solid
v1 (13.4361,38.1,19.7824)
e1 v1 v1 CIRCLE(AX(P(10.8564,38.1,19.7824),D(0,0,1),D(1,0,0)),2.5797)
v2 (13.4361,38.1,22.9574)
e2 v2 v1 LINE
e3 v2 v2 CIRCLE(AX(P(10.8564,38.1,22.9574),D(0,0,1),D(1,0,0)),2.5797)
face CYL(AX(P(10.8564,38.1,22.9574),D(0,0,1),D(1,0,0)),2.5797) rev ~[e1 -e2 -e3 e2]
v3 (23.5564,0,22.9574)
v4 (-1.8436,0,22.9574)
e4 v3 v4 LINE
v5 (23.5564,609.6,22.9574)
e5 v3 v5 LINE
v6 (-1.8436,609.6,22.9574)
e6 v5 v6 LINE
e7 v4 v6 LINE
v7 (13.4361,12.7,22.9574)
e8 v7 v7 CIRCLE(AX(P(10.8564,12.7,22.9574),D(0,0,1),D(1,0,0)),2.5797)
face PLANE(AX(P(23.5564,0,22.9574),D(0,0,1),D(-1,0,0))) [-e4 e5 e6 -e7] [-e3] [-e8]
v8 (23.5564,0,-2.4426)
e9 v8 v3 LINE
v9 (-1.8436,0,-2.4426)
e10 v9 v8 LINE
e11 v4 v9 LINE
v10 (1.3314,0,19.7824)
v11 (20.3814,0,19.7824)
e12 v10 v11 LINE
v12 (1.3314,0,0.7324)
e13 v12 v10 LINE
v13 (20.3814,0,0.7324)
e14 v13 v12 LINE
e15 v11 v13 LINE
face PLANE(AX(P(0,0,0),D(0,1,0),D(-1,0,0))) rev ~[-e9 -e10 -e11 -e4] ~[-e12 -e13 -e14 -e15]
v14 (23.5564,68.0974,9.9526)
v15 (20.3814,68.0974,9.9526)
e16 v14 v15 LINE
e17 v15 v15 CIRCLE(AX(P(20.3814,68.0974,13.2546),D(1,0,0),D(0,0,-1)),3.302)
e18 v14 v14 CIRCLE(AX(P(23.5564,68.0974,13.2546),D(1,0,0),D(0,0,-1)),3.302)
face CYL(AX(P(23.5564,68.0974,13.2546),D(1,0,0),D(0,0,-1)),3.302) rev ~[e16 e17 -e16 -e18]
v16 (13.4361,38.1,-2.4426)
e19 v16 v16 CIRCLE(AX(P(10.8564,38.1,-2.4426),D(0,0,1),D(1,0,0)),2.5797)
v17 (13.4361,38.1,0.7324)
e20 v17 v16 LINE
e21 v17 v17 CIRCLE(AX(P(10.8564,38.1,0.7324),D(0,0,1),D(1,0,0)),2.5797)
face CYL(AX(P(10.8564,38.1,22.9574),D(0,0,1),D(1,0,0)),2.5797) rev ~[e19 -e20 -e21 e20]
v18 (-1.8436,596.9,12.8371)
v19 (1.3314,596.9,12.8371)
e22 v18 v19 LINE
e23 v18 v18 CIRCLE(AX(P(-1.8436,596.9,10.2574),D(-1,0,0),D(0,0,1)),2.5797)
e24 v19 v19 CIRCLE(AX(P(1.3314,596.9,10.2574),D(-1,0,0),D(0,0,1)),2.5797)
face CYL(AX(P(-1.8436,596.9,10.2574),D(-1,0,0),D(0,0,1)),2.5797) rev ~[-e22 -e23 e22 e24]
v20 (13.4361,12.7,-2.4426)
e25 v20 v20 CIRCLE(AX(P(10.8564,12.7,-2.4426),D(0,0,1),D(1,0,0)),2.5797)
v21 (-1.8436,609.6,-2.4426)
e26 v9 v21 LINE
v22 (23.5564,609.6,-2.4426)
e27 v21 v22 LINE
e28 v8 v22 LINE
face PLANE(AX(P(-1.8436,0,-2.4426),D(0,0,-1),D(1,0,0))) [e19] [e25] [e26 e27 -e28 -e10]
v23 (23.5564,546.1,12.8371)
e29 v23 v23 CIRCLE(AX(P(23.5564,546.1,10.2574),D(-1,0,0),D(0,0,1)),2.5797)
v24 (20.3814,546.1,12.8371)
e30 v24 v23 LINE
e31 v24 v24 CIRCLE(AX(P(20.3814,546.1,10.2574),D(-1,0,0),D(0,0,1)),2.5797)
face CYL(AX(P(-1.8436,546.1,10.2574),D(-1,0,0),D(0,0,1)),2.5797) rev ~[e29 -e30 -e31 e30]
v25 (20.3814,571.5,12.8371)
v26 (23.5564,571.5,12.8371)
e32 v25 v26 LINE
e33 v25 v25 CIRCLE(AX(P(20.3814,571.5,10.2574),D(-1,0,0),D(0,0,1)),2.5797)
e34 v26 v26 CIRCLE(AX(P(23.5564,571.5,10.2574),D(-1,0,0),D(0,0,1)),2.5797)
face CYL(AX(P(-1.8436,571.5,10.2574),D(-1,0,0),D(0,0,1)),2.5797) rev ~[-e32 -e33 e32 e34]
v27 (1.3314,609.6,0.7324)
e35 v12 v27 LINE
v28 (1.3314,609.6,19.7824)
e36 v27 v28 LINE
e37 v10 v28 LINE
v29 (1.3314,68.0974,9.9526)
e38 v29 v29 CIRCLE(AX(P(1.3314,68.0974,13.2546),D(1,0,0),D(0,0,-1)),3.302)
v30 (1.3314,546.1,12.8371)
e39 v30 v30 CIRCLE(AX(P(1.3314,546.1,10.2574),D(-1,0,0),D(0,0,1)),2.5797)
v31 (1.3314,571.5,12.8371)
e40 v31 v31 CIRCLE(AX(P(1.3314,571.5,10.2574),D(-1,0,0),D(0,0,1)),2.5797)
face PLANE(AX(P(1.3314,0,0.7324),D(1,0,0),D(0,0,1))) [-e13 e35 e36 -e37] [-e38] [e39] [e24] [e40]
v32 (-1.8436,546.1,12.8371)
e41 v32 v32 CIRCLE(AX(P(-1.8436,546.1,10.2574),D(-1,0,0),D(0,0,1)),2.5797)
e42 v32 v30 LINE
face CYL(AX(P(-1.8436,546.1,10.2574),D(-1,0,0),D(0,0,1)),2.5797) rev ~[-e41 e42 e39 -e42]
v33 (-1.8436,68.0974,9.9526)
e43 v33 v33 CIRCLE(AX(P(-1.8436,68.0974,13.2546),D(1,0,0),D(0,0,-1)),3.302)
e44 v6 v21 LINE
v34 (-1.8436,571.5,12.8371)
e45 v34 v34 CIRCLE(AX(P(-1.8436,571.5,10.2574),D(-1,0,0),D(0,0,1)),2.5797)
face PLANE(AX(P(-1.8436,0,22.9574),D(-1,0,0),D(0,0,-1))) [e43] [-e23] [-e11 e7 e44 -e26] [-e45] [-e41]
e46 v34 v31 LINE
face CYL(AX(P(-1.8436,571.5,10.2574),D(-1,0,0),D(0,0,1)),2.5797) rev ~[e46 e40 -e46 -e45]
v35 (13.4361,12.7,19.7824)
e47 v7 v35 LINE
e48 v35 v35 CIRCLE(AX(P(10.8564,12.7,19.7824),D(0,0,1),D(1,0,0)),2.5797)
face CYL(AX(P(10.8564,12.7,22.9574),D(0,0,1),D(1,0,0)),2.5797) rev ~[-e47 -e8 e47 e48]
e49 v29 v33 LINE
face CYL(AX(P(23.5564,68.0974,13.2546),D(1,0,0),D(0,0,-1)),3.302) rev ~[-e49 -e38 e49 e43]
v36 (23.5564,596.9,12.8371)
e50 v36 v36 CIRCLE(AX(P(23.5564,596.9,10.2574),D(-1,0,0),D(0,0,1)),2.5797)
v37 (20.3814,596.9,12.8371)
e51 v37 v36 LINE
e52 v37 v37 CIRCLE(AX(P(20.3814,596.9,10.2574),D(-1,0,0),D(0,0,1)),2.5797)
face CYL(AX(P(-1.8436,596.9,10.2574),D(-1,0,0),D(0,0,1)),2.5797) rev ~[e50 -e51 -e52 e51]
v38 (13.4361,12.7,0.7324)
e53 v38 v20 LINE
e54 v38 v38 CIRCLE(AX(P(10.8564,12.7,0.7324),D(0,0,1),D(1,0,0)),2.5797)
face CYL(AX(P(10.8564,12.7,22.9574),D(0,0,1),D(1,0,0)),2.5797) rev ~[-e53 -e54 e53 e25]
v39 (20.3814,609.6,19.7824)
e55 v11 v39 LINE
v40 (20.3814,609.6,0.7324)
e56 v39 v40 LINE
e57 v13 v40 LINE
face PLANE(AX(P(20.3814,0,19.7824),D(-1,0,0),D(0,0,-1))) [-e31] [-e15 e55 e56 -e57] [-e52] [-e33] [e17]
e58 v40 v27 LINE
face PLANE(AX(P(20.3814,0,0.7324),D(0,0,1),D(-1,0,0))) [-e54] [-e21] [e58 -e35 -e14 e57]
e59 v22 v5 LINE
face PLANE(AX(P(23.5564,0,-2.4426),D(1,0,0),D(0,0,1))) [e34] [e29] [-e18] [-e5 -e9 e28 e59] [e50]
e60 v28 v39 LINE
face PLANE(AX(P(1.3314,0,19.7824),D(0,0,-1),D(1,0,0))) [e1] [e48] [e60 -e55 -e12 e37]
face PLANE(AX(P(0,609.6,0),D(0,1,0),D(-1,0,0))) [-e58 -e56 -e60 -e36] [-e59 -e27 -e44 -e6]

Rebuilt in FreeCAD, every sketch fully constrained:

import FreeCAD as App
import Part
import Sketcher

V = App.Vector
Q = App.Units.Quantity

doc = App.newDocument("Part")
body = doc.addObject("PartDesign::Body", "Body")

sketch1 = body.newObject("Sketcher::SketchObject", "Sketch")
sketch1.AttachmentSupport = (doc.getObject("XZ_Plane"), [""])
sketch1.MapMode = "FlatFace"
sketch1.addGeometry([
    Part.LineSegment(V(24, -2, 0), V(-2, -2, 0)),
    Part.LineSegment(V(-2, -2, 0), V(-2, 23, 0)),
    Part.LineSegment(V(-2, 23, 0), V(24, 23, 0)),
    Part.LineSegment(V(24, 23, 0), V(24, -2, 0)),
    Part.LineSegment(V(1, 1, 0), V(20, 1, 0)),
    Part.LineSegment(V(20, 1, 0), V(20, 20, 0)),
    Part.LineSegment(V(20, 20, 0), V(1, 20, 0)),
    Part.LineSegment(V(1, 20, 0), V(1, 1, 0)),
], False)
sketch1.addConstraint([
    Sketcher.Constraint("Coincident", 0, 2, 1, 1),
    Sketcher.Constraint("Coincident", 1, 2, 2, 1),
    Sketcher.Constraint("Coincident", 2, 2, 3, 1),
    Sketcher.Constraint("Coincident", 3, 2, 0, 1),
    Sketcher.Constraint("Coincident", 4, 2, 5, 1),
    Sketcher.Constraint("Coincident", 5, 2, 6, 1),
    Sketcher.Constraint("Coincident", 6, 2, 7, 1),
    Sketcher.Constraint("Coincident", 7, 2, 4, 1),
    Sketcher.Constraint("Horizontal", 0),
    Sketcher.Constraint("Vertical", 1),
    Sketcher.Constraint("Horizontal", 2),
    Sketcher.Constraint("Vertical", 3),
    Sketcher.Constraint("Horizontal", 4),
    Sketcher.Constraint("Vertical", 5),
    Sketcher.Constraint("Horizontal", 6),
    Sketcher.Constraint("Vertical", 7),
    Sketcher.Constraint("Equal", 2, 1),
    Sketcher.Constraint("Equal", 6, 5),
    Sketcher.Constraint("DistanceX", 0, 2, 0, 1, Q("1 in")),
    Sketcher.Constraint("DistanceX", 4, 2, 3, 2, Q("0.125 in")),
    Sketcher.Constraint("DistanceY", 3, 2, 4, 2, Q("0.125 in")),
    Sketcher.Constraint("DistanceY", 5, 2, 2, 2, Q("0.125 in")),
    Sketcher.Constraint("DistanceX", 0, 2, -1, 1, Q("1.8436 mm")),
    Sketcher.Constraint("DistanceY", 0, 2, -1, 1, Q("2.4426 mm")),
])
pad1 = body.newObject("PartDesign::Pad", "Pad")
pad1.Profile = sketch1
pad1.Length = Q("24 in")
pad1.Reversed = True

sketch2 = body.newObject("Sketcher::SketchObject", "Sketch001")
sketch2.AttachmentSupport = (doc.getObject("XY_Plane"), [""])
sketch2.MapMode = "FlatFace"
sketch2.AttachmentOffset = App.Placement(V(0, 0, 22.9574), App.Rotation())
sketch2.addGeometry([
    Part.Circle(V(10.9, 12.7, 0), V(0, 0, 1), 2.6),
    Part.Circle(V(10.9, 38.1, 0), V(0, 0, 1), 2.6),
], False)
sketch2.addConstraint([
    Sketcher.Constraint("Equal", 0, 1),
    Sketcher.Constraint("Vertical", 0, 3, 1, 3),
    Sketcher.Constraint("Diameter", 0, Q("0.203126 in")),
    Sketcher.Constraint("DistanceY", 0, 3, 1, 3, Q("1 in")),
    Sketcher.Constraint("DistanceY", -1, 1, 0, 3, Q("0.5 in")),
    Sketcher.Constraint("DistanceX", -1, 1, 0, 3, Q("10.8564 mm")),
])
pocket1 = body.newObject("PartDesign::Pocket", "Pocket")
pocket1.Profile = sketch2
pocket1.Length = Q("5 in")

sketch3 = body.newObject("Sketcher::SketchObject", "Sketch002")
sketch3.AttachmentSupport = (doc.getObject("YZ_Plane"), [""])
sketch3.MapMode = "FlatFace"
sketch3.AttachmentOffset = App.Placement(V(0, 0, 23.5564), App.Rotation())
sketch3.addGeometry(Part.Circle(V(68.1, 13.3, 0), V(0, 0, 1), 3.3), False)
sketch3.addConstraint([
    Sketcher.Constraint("Diameter", 0, Q("0.26 in")),
    Sketcher.Constraint("DistanceX", -1, 1, 0, 3, Q("2.681 in")),
    Sketcher.Constraint("DistanceY", -1, 1, 0, 3, Q("13.2546 mm")),
])
pocket2 = body.newObject("PartDesign::Pocket", "Pocket001")
pocket2.Profile = sketch3
pocket2.Length = Q("2 in")

sketch4 = body.newObject("Sketcher::SketchObject", "Sketch003")
sketch4.AttachmentSupport = (doc.getObject("YZ_Plane"), [""])
sketch4.MapMode = "FlatFace"
sketch4.AttachmentOffset = App.Placement(V(0, 0, -1.8436), App.Rotation())
sketch4.addGeometry([
    Part.Circle(V(596.9, 10.3, 0), V(0, 0, 1), 2.6),
    Part.Circle(V(571.5, 10.3, 0), V(0, 0, 1), 2.6),
    Part.Circle(V(546.1, 10.3, 0), V(0, 0, 1), 2.6),
], False)
sketch4.addConstraint([
    Sketcher.Constraint("Equal", 0, 1),
    Sketcher.Constraint("Equal", 1, 2),
    Sketcher.Constraint("Horizontal", 0, 3, 1, 3),
    Sketcher.Constraint("Horizontal", 1, 3, 2, 3),
    Sketcher.Constraint("Diameter", 0, Q("0.203126 in")),
    Sketcher.Constraint("DistanceX", 1, 3, 0, 3, Q("1 in")),
    Sketcher.Constraint("DistanceX", 2, 3, 1, 3, Q("1 in")),
    Sketcher.Constraint("DistanceX", -1, 1, 0, 3, Q("23.5 in")),
    Sketcher.Constraint("DistanceY", -1, 1, 0, 3, Q("10.2574 mm")),
])
pocket3 = body.newObject("PartDesign::Pocket", "Pocket002")
pocket3.Profile = sketch4
pocket3.Length = Q("1 in")
pocket3.Reversed = True

doc.recompute()
